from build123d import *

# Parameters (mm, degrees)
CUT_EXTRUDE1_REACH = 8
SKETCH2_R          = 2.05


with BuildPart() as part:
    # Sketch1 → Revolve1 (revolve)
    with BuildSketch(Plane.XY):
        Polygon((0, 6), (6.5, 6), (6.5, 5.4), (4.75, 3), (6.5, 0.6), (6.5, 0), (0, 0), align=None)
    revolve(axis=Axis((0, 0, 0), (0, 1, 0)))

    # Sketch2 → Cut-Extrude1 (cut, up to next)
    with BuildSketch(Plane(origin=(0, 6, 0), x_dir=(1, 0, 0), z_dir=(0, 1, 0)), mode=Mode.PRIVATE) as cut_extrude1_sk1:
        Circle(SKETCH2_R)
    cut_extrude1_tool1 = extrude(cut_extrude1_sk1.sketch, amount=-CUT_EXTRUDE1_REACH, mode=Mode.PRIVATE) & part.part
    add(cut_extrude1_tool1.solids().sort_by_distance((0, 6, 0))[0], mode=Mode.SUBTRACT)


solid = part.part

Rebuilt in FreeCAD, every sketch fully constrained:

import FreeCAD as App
import Part
import Sketcher
Q = App.Units.Quantity

doc = App.newDocument("Part")
params = doc.addObject("Spreadsheet::Sheet", "Params")
for row, (alias, value) in enumerate([
    ("sketch1_height", "6 mm"),
    ("sketch1_width", "6.5 mm"),
    ("sketch1_height2", "0.6 mm"),
    ("revolution_angle", "360 deg"),
    ("sketch2_diameter", "4.1 mm"),
], start=1):
    params.set(f"A{row}", alias)
    params.set(f"B{row}", "=" + value)
    params.setAlias(f"B{row}", alias)

body = doc.addObject("PartDesign::Body", "Body")

# Sketch on XY plane
sketch1 = body.newObject("Sketcher::SketchObject", "Sketch")
sketch1.AttachmentSupport = (doc.getObject("XY_Plane"), [""])
sketch1.MapMode = "FlatFace"
sketch1.addGeometry(Part.LineSegment(App.Vector(6.5, 6, 0), App.Vector(0, 6, 0)), False)
sketch1.addGeometry(Part.LineSegment(App.Vector(0, 6, 0), App.Vector(0, 0, 0)), False)
sketch1.addGeometry(Part.LineSegment(App.Vector(0, 0, 0), App.Vector(6.5, 0, 0)), False)
sketch1.addGeometry(Part.LineSegment(App.Vector(6.5, 0, 0), App.Vector(6.5, 0.6, 0)), False)
sketch1.addGeometry(Part.LineSegment(App.Vector(6.5, 0.6, 0), App.Vector(4.8, 3, 0)), False)
sketch1.addGeometry(Part.LineSegment(App.Vector(4.8, 3, 0), App.Vector(6.5, 5.4, 0)), False)
sketch1.addGeometry(Part.LineSegment(App.Vector(6.5, 5.4, 0), App.Vector(6.5, 6, 0)), False)
sketch1.addConstraint(Sketcher.Constraint("Coincident", 0, 2, 1, 1))
sketch1.addConstraint(Sketcher.Constraint("Coincident", 1, 2, 2, 1))
sketch1.addConstraint(Sketcher.Constraint("Coincident", 2, 2, 3, 1))
sketch1.addConstraint(Sketcher.Constraint("Coincident", 3, 2, 4, 1))
sketch1.addConstraint(Sketcher.Constraint("Coincident", 4, 2, 5, 1))
sketch1.addConstraint(Sketcher.Constraint("Coincident", 5, 2, 6, 1))
sketch1.addConstraint(Sketcher.Constraint("Coincident", 6, 2, 0, 1))
sketch1.addConstraint(Sketcher.Constraint("Horizontal", 0))
sketch1.addConstraint(Sketcher.Constraint("Vertical", 1))
sketch1.addConstraint(Sketcher.Constraint("Horizontal", 2))
sketch1.addConstraint(Sketcher.Constraint("Vertical", 3))
sketch1.addConstraint(Sketcher.Constraint("Vertical", 6))
sketch1.addConstraint(Sketcher.Constraint("Coincident", 1, 2, -1, 1))
sketch1.addConstraint(Sketcher.Constraint("Vertical", 3, 2, 5, 2))
sketch1.addConstraint(Sketcher.Constraint("Equal", 3, 6))
sketch1.addConstraint(Sketcher.Constraint("Equal", 4, 5))
sketch1.addConstraint(Sketcher.Constraint("DistanceY", 1, 2, 1, 1, Q("6 mm")))
sketch1.addConstraint(Sketcher.Constraint("DistanceX", 0, 2, 0, 1, Q("6.5 mm")))
sketch1.addConstraint(Sketcher.Constraint("DistanceY", 3, 1, 3, 2, Q("0.6 mm")))
sketch1.addConstraint(Sketcher.Constraint("DistanceX", -1, 1, 4, 2, Q("4.75 mm")))
sketch1.setExpression("Constraints[16]", "Params.sketch1_height")
sketch1.setExpression("Constraints[17]", "Params.sketch1_width")
sketch1.setExpression("Constraints[18]", "Params.sketch1_height2")
revolution = body.newObject("PartDesign::Revolution", "Revolution")
revolution.Profile = sketch1
revolution.ReferenceAxis = (sketch1, ["V_Axis"])
revolution.setExpression("Angle", "Params.revolution_angle")

# Sketch on XZ plane
sketch2 = body.newObject("Sketcher::SketchObject", "Sketch001")
sketch2.AttachmentSupport = (doc.getObject("XZ_Plane"), [""])
sketch2.MapMode = "FlatFace"
sketch2.AttachmentOffset = App.Placement(App.Vector(0, 0, -6), App.Rotation())
sketch2.addGeometry(Part.Circle(App.Vector(0, 0, 0), App.Vector(0, 0, 1), 2), False)
sketch2.addConstraint(Sketcher.Constraint("Coincident", 0, 3, -1, 1))
sketch2.addConstraint(Sketcher.Constraint("Diameter", 0, Q("4.1 mm")))
sketch2.setExpression("Constraints[1]", "Params.sketch2_diameter")
pocket1 = body.newObject("PartDesign::Pocket", "Pocket")
pocket1.Profile = sketch2
pocket1.Type = "UpToFirst"
pocket1.Reversed = True

doc.recompute()
